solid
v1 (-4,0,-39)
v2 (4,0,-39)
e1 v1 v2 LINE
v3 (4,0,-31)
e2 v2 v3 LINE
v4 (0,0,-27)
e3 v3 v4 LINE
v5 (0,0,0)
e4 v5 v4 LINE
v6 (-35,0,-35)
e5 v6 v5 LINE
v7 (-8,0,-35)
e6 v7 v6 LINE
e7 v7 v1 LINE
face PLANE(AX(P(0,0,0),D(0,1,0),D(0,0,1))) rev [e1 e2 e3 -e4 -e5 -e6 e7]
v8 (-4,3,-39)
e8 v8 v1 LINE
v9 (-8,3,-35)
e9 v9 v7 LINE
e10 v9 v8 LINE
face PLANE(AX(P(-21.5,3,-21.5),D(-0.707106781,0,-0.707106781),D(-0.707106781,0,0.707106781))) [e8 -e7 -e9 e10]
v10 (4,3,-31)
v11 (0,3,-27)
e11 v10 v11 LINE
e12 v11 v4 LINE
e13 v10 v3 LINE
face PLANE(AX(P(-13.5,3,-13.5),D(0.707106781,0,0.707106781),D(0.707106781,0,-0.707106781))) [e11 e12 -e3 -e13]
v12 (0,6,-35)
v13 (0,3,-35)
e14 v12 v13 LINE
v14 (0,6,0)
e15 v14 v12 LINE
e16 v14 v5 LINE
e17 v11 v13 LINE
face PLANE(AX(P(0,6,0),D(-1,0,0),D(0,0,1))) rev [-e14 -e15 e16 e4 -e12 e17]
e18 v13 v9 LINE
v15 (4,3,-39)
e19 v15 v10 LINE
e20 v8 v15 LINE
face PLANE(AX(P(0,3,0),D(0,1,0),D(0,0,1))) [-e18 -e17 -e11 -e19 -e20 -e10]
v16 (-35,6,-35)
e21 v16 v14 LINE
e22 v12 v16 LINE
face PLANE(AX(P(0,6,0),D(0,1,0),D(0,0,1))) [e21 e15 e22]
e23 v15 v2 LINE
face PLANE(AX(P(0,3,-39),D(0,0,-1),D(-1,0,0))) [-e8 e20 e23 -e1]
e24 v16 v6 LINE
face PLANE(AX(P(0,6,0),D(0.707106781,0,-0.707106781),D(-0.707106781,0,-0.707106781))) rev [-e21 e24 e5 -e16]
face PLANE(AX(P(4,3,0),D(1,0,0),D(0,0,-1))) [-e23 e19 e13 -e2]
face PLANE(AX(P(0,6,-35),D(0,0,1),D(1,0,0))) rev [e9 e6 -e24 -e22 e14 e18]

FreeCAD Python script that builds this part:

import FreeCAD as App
import Part
import Sketcher
Q = App.Units.Quantity


def add_polygon(sketch, points):
    """Adds a closed chain of lines whose ends are joined by coincident constraints."""
    first, n = sketch.GeometryCount, len(points)
    for a, b in zip(points, points[1:] + points[:1]):
        sketch.addGeometry(Part.LineSegment(App.Vector(*a, 0), App.Vector(*b, 0)), False)
    for i in range(n):
        sketch.addConstraint(Sketcher.Constraint("Coincident", first + i, 2, first + (i + 1) % n, 1))

doc = App.newDocument("Part")
body = doc.addObject("PartDesign::Body", "Body")

# Sketch on XZ plane
sketch1 = doc.addObject("Sketcher::SketchObject", "Sketch")
body.addObject(sketch1)
sketch1.AttachmentSupport = (doc.XZ_Plane, [""])
sketch1.MapMode = "FlatFace"
add_polygon(sketch1, [(0, -35), (-35, -35), (0, 0)])  # lines 0-2
sketch1.addConstraint([
    Sketcher.Constraint("Horizontal", 0),
    Sketcher.Constraint("Vertical", 2),
    Sketcher.Constraint("Coincident", 1, 2, -1, 1),
    Sketcher.Constraint("Equal", 0, 2),
    Sketcher.Constraint("DistanceX", 0, 2, 0, 1, Q("35 mm")),
])
pad1 = doc.addObject("PartDesign::Pad", "Pad")
body.addObject(pad1)
pad1.Profile = sketch1
pad1.Length = 6
pad1.Reversed = True

# Sketch on XZ plane
sketch2 = doc.addObject("Sketcher::SketchObject", "Sketch001")
body.addObject(sketch2)
sketch2.AttachmentSupport = (doc.XZ_Plane, [""])
sketch2.MapMode = "FlatFace"
add_polygon(sketch2, [(0, -35), (0, -27), (4, -31), (4, -39), (-4, -39), (-8, -35)])  # lines 0-5
sketch2.addConstraint([
    Sketcher.Constraint("Vertical", 0),
    Sketcher.Constraint("Vertical", 2),
    Sketcher.Constraint("Horizontal", 3),
    Sketcher.Constraint("Horizontal", 5),
    Sketcher.Constraint("PointOnObject", 0, 2, -2),
    Sketcher.Constraint("Parallel", 1, 4),
    Sketcher.Constraint("Equal", 3, 5),
    Sketcher.Constraint("Equal", 5, 0),
    Sketcher.Constraint("DistanceX", 3, 2, 3, 1, Q("8 mm")),
    Sketcher.Constraint("Angle", 1, Q("-45 deg")),
    Sketcher.Constraint("DistanceY", 0, 2, -1, 1, Q("27 mm")),
    Sketcher.Constraint("DistanceX", -1, 1, 1, 2, Q("4 mm")),
])
pad2 = doc.addObject("PartDesign::Pad", "Pad001")
body.addObject(pad2)
pad2.Profile = sketch2
pad2.Length = 3
pad2.Reversed = True

doc.recompute()
